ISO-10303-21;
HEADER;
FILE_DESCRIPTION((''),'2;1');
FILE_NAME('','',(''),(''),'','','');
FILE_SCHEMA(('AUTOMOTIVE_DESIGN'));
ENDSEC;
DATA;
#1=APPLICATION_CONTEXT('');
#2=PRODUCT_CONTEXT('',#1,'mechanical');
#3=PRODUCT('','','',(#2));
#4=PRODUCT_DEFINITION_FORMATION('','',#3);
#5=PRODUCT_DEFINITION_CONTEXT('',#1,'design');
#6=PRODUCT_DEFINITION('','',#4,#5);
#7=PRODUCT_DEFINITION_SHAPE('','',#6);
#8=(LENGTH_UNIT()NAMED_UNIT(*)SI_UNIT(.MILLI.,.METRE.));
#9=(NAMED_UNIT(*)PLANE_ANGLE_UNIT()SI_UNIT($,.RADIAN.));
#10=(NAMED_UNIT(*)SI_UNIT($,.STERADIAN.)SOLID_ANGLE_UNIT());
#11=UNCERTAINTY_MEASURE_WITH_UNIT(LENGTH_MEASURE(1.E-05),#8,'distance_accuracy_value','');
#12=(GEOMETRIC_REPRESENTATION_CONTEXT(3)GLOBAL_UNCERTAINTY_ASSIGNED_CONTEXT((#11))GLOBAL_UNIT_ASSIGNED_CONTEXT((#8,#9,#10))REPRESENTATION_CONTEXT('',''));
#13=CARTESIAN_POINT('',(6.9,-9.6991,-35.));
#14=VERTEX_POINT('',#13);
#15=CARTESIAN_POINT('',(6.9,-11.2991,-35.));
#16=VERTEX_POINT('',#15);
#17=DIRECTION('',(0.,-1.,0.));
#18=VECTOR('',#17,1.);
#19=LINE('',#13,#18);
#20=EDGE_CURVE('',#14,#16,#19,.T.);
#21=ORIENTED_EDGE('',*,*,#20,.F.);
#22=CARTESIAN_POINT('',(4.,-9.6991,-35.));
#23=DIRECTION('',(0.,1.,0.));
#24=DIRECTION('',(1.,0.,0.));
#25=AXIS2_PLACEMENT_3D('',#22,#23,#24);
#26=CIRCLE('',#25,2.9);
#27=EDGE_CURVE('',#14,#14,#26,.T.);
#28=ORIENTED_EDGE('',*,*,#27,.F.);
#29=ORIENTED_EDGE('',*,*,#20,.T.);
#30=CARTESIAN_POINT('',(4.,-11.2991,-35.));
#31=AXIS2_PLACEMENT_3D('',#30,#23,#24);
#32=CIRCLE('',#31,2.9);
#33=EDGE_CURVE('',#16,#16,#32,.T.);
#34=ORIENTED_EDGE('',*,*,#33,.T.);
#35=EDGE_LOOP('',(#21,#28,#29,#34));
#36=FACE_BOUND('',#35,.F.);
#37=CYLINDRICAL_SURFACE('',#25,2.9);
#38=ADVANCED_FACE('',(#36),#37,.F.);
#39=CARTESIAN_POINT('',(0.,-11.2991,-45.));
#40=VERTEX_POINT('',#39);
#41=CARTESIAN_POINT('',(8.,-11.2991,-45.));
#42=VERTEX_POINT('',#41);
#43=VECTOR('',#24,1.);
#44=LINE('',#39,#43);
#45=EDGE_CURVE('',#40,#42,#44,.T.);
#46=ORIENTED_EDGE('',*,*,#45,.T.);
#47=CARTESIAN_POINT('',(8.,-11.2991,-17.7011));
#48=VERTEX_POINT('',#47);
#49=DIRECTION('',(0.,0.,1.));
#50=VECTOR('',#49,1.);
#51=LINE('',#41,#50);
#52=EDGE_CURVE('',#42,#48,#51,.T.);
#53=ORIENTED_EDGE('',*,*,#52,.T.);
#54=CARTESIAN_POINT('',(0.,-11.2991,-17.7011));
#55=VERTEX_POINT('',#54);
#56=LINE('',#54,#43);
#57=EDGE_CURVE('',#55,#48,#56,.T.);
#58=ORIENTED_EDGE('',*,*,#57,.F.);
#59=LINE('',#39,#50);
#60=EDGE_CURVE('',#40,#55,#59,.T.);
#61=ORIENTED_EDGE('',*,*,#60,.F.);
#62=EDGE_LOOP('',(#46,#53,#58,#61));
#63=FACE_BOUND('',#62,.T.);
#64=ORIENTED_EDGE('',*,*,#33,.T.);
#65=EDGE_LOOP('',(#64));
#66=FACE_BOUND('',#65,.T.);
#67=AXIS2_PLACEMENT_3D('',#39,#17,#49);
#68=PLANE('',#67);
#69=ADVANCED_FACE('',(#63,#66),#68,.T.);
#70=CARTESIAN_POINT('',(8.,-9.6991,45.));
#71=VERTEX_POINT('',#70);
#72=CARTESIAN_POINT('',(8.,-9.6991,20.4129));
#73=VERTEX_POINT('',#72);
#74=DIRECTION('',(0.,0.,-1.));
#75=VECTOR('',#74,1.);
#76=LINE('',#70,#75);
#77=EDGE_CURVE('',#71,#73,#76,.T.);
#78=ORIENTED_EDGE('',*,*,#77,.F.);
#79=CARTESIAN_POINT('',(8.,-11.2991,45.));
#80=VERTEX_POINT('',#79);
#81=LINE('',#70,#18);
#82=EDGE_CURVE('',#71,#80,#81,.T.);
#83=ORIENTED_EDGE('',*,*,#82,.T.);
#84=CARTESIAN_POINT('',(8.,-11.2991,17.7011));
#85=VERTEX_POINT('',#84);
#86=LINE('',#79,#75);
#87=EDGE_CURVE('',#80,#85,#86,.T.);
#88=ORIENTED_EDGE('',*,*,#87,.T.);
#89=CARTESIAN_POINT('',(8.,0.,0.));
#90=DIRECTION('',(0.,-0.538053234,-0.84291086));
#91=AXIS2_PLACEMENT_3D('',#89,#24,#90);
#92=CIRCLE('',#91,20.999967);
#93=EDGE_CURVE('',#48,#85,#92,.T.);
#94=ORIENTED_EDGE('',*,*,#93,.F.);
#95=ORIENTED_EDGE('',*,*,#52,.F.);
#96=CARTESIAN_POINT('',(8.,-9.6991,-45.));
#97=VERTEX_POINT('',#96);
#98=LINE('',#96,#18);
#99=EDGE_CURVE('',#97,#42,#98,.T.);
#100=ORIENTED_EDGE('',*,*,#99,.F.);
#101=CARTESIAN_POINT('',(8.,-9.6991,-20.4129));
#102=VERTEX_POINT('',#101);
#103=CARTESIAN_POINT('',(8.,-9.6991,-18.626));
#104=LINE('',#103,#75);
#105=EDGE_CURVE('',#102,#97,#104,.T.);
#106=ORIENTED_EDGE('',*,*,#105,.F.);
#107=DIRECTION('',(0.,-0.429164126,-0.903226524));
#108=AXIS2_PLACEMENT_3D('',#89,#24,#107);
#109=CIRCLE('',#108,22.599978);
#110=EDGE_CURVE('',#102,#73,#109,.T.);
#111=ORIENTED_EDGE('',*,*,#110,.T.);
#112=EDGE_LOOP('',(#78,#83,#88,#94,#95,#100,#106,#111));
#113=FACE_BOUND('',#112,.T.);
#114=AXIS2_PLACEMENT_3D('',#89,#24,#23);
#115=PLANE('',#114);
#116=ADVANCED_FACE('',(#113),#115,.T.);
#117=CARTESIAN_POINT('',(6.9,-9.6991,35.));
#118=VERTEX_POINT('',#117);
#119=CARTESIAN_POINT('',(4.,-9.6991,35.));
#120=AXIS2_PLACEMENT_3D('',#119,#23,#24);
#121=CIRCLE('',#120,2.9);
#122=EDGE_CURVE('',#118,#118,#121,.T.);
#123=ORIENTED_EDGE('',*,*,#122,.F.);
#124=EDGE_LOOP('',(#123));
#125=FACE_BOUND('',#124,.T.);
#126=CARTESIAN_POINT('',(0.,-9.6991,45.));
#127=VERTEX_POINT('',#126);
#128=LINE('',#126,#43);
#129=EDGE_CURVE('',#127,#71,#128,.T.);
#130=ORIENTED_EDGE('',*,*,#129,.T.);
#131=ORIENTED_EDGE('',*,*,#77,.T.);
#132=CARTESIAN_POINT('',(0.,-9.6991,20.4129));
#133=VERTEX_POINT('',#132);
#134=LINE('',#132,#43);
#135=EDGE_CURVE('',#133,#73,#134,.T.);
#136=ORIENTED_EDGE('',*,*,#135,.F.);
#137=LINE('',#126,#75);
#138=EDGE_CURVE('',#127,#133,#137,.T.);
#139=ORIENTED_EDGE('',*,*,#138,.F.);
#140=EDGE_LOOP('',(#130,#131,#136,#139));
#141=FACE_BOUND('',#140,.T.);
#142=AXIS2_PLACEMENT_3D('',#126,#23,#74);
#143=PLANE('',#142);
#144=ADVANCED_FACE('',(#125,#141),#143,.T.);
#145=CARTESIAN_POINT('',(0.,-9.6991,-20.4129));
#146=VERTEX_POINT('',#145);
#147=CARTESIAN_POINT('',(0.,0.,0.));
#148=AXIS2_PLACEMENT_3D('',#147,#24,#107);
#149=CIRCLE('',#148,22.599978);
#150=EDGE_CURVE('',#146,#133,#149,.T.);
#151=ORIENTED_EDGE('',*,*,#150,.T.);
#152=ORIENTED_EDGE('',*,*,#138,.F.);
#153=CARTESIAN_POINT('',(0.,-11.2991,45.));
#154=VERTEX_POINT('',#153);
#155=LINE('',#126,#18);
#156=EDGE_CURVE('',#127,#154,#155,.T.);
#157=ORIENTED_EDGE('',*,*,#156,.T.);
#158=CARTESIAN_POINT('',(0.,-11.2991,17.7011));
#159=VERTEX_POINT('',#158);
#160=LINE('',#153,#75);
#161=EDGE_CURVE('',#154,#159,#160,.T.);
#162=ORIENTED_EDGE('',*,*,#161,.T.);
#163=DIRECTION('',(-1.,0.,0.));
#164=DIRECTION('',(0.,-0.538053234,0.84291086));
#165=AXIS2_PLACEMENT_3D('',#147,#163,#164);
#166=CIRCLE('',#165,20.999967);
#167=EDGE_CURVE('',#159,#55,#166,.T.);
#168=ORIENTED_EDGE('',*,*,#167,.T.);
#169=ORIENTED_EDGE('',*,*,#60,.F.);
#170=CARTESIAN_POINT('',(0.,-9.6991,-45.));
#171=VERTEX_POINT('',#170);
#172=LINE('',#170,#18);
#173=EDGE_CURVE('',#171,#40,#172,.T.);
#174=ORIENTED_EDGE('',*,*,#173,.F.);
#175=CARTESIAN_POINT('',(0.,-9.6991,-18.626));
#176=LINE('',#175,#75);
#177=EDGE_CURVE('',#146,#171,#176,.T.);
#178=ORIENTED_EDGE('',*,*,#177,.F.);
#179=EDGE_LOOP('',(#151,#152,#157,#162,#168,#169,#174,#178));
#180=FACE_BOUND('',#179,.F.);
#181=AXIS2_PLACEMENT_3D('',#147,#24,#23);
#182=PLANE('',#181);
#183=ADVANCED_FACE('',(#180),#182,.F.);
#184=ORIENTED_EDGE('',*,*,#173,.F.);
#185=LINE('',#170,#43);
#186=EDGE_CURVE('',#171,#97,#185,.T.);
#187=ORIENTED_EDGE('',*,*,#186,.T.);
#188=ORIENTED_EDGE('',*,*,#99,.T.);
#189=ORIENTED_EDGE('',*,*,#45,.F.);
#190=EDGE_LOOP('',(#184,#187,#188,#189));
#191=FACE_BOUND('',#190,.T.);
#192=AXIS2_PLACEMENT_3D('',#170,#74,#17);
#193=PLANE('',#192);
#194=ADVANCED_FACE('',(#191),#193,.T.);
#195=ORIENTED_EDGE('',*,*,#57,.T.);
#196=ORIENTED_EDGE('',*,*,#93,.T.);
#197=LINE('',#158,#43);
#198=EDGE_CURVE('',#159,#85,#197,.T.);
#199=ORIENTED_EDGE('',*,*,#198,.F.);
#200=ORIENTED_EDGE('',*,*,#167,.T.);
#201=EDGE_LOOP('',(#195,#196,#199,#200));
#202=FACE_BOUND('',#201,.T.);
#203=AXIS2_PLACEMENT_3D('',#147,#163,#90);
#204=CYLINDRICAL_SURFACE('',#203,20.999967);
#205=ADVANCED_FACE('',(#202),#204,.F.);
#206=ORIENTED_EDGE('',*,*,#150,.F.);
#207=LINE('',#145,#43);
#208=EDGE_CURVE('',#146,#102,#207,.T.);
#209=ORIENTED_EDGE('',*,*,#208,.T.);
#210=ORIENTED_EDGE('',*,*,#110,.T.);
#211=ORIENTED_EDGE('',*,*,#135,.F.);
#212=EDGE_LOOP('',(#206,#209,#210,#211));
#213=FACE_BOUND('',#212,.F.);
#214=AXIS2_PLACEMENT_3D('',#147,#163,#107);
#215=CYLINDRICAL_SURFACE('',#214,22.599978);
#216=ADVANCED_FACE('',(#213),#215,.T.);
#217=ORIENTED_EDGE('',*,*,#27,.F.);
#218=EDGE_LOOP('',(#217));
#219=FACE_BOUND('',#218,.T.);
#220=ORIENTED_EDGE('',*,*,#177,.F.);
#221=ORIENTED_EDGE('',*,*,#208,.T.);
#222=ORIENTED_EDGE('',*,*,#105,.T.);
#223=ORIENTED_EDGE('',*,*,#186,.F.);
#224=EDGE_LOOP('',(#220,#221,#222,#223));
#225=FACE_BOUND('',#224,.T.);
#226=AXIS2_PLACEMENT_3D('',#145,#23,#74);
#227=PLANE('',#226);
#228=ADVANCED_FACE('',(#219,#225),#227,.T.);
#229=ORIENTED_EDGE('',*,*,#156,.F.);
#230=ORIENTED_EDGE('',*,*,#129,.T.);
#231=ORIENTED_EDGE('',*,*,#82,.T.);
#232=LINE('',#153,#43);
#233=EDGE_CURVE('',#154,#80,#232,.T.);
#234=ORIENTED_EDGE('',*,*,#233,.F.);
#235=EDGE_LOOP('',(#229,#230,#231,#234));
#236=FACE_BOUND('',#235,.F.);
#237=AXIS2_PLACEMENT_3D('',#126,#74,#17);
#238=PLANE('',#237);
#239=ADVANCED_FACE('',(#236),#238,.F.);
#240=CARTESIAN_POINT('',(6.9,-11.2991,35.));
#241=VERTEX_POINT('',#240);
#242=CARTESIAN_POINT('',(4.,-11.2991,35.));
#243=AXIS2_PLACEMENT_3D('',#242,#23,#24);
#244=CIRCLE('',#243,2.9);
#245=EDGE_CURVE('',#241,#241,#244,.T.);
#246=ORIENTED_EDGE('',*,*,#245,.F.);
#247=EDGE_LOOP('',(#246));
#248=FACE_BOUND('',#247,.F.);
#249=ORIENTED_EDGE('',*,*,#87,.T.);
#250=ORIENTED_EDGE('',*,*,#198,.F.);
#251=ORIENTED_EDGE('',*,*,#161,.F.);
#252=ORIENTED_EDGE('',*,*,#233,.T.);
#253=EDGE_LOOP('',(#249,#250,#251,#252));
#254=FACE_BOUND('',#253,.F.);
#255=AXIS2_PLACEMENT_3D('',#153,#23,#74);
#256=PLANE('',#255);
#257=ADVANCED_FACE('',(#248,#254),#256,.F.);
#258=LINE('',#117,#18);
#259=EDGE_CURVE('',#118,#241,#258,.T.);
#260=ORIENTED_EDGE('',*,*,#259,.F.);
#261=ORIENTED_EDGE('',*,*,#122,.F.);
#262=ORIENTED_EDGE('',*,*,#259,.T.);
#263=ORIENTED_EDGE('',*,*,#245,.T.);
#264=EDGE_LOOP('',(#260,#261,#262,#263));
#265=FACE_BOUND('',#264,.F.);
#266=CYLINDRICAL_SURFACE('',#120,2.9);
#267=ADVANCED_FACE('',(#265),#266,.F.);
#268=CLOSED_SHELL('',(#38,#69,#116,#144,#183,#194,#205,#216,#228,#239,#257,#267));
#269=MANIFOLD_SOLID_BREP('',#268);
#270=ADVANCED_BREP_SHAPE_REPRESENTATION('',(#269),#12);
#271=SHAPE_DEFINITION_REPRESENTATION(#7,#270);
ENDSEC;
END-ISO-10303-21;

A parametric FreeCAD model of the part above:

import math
import FreeCAD as App
import Part
import Sketcher
from FreeCAD import Vector

doc = App.newDocument("Part")
params = doc.addObject("Spreadsheet::Sheet", "Params")
for row, (alias, value) in enumerate([
    ("sketch1_radius", "21 mm"),
    ("sketch1_radius2", "22.6 mm"),
    ("sketch1_width", "1.6 mm"),
    ("pad1_length", "8 mm"),
    ("sketch2_diameter", "5.8 mm"),
], start=1):
    params.set(f"A{row}", alias)
    params.set(f"B{row}", "=" + value)
    params.setAlias(f"B{row}", alias)

body = doc.addObject("PartDesign::Body", "Body")

# Sketch on YZ plane
sketch1 = body.newObject("Sketcher::SketchObject", "Sketch")
sketch1.AttachmentSupport = (doc.getObject("YZ_Plane"), [""])
sketch1.MapMode = "FlatFace"
sketch1.addGeometry(Part.LineSegment(Vector(-11.3, -17.7, 0), Vector(-11.3, -45, 0)), False)
sketch1.addGeometry(Part.LineSegment(Vector(-11.3, -45, 0), Vector(-9.7, -45, 0)), False)
sketch1.addGeometry(Part.LineSegment(Vector(-9.7, -45, 0), Vector(-9.7, -20.4, 0)), False)
sketch1.addGeometry(Part.ArcOfCircle(Part.Circle(Vector(0, 0, 0), Vector(0, 0, 1), 22.6), math.radians(-115), math.radians(115)), False)
sketch1.addGeometry(Part.LineSegment(Vector(-9.7, 20.4, 0), Vector(-9.7, 45, 0)), False)
sketch1.addGeometry(Part.LineSegment(Vector(-9.7, 45, 0), Vector(-11.3, 45, 0)), False)
sketch1.addGeometry(Part.LineSegment(Vector(-11.3, 45, 0), Vector(-11.3, 17.7, 0)), False)
sketch1.addGeometry(Part.ArcOfCircle(Part.Circle(Vector(0, 0, 0), Vector(0, 0, 1), 21), math.radians(-123), math.radians(123)), False)
sketch1.addConstraint(Sketcher.Constraint("Coincident", 0, 2, 1, 1))
sketch1.addConstraint(Sketcher.Constraint("Coincident", 1, 2, 2, 1))
sketch1.addConstraint(Sketcher.Constraint("Coincident", 2, 2, 3, 1))
sketch1.addConstraint(Sketcher.Constraint("Coincident", 3, 2, 4, 1))
sketch1.addConstraint(Sketcher.Constraint("Coincident", 4, 2, 5, 1))
sketch1.addConstraint(Sketcher.Constraint("Coincident", 5, 2, 6, 1))
sketch1.addConstraint(Sketcher.Constraint("Coincident", 6, 2, 7, 2))
sketch1.addConstraint(Sketcher.Constraint("Coincident", 7, 1, 0, 1))
sketch1.addConstraint(Sketcher.Constraint("Vertical", 0))
sketch1.addConstraint(Sketcher.Constraint("Horizontal", 1))
sketch1.addConstraint(Sketcher.Constraint("Vertical", 2))
sketch1.addConstraint(Sketcher.Constraint("Vertical", 4))
sketch1.addConstraint(Sketcher.Constraint("Horizontal", 5))
sketch1.addConstraint(Sketcher.Constraint("Vertical", 6))
sketch1.addConstraint(Sketcher.Constraint("Coincident", 3, 3, -1, 1))
sketch1.addConstraint(Sketcher.Constraint("Coincident", 7, 3, -1, 1))
sketch1.addConstraint(Sketcher.Constraint("Symmetric", 1, 2, 4, 2, -1))
sketch1.addConstraint(Sketcher.Constraint("Vertical", 0, 2, 5, 2))
sketch1.addConstraint(Sketcher.Constraint("Radius", 7, 21.0))
sketch1.addConstraint(Sketcher.Constraint("Radius", 3, 22.6))
sketch1.addConstraint(Sketcher.Constraint("DistanceX", 1, 1, 1, 2, 1.6))
sketch1.addConstraint(Sketcher.Constraint("DistanceY", 0, 2, -1, 1, 45.0))
sketch1.addConstraint(Sketcher.Constraint("DistanceY", 0, 2, 0, 1, 27.299))
sketch1.setExpression("Constraints[18]", "Params.sketch1_radius")
sketch1.setExpression("Constraints[19]", "Params.sketch1_radius2")
sketch1.setExpression("Constraints[20]", "Params.sketch1_width")
pad1 = body.newObject("PartDesign::Pad", "Pad")
pad1.Profile = sketch1
pad1.setExpression("Length", "Params.pad1_length")

# Sketch on XZ plane
sketch2 = body.newObject("Sketcher::SketchObject", "Sketch001")
sketch2.AttachmentSupport = (doc.getObject("XZ_Plane"), [""])
sketch2.MapMode = "FlatFace"
sketch2.AttachmentOffset = App.Placement(Vector(0, 0, 9.6991), App.Rotation())
sketch2.addGeometry(Part.Circle(Vector(4, 35, 0), Vector(0, 0, 1), 2.9), False)
sketch2.addGeometry(Part.Circle(Vector(4, -35, 0), Vector(0, 0, 1), 2.9), False)
sketch2.addConstraint(Sketcher.Constraint("Equal", 0, 1))
sketch2.addConstraint(Sketcher.Constraint("Symmetric", 0, 3, 1, 3, -1))
sketch2.addConstraint(Sketcher.Constraint("Diameter", 0, 5.8))
sketch2.addConstraint(Sketcher.Constraint("DistanceX", -1, 1, 0, 3, 4.0))
sketch2.addConstraint(Sketcher.Constraint("DistanceY", -1, 1, 0, 3, 35.0))
sketch2.setExpression("Constraints[2]", "Params.sketch2_diameter")
pocket1 = body.newObject("PartDesign::Pocket", "Pocket")
pocket1.Profile = sketch2
pocket1.Type = "ThroughAll"
pocket1.Reversed = True

doc.recompute()
